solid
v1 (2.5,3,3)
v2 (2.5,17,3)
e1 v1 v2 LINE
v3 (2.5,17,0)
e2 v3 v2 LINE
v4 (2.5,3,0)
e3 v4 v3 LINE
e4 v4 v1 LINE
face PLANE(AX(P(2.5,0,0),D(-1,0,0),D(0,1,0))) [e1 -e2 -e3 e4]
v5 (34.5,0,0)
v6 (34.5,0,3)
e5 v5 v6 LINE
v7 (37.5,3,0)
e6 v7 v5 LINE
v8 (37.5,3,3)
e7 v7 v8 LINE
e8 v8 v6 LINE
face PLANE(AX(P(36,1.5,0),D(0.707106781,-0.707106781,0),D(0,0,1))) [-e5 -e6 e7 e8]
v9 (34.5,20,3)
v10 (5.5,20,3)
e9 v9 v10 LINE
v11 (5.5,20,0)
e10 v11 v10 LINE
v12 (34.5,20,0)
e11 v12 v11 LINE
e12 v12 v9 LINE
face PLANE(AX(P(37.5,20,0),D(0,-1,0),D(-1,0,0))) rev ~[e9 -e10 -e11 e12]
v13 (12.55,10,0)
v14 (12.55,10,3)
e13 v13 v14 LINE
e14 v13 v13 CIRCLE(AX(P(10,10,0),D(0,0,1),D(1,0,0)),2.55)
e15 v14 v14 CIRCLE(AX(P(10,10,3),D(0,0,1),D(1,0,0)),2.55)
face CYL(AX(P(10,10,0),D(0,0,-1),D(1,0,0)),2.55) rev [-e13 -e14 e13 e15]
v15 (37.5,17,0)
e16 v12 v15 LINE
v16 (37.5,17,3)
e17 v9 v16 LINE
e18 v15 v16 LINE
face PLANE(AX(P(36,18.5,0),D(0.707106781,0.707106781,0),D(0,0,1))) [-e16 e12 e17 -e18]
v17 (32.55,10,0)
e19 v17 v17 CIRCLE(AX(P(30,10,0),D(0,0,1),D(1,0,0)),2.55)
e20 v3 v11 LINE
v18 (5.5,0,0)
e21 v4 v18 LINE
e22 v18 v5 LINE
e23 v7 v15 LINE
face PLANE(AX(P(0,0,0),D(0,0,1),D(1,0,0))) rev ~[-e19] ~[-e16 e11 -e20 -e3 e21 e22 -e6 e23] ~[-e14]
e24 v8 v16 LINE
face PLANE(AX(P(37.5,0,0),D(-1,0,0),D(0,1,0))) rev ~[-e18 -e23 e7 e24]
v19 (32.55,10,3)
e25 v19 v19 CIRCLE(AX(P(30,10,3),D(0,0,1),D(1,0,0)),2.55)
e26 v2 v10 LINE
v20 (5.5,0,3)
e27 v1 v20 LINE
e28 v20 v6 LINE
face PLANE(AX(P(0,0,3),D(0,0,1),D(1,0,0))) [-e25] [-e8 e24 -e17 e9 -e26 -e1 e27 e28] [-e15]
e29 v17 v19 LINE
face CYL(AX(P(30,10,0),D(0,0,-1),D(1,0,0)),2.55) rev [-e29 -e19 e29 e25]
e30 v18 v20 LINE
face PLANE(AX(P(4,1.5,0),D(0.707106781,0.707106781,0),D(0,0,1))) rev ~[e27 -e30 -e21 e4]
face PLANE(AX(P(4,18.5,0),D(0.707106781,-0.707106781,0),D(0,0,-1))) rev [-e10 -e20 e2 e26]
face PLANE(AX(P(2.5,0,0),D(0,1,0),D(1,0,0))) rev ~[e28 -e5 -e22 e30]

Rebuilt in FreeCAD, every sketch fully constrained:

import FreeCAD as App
import Part
import Sketcher

V = App.Vector


def edges_at(feature, points):
    """Names of the edges that pass closest to the given points."""
    edges = feature.Shape.Edges
    near = lambda p: min(range(len(edges)), key=lambda i: edges[i].distToShape(Part.Vertex(*p))[0])
    return sorted({f"Edge{near(p) + 1}" for p in points})


def add_polygon(sketch, points):
    """Adds a closed chain of lines whose ends are joined by coincident constraints."""
    first, n = sketch.GeometryCount, len(points)
    for a, b in zip(points, points[1:] + points[:1]):
        sketch.addGeometry(Part.LineSegment(App.Vector(*a, 0), App.Vector(*b, 0)), False)
    for i in range(n):
        sketch.addConstraint(Sketcher.Constraint("Coincident", first + i, 2, first + (i + 1) % n, 1))

doc = App.newDocument("Part")
body = doc.addObject("PartDesign::Body", "Body")

# Sketch on XY plane
sketch1 = doc.addObject("Sketcher::SketchObject", "Sketch")
body.addObject(sketch1)
sketch1.AttachmentSupport = (doc.XY_Plane, [""])
sketch1.MapMode = "FlatFace"
add_polygon(sketch1, [(2.5, 20), (2.5, 0), (37.5, 0), (37.5, 20)])  # lines 0-3
sketch1.addGeometry(Part.Circle(V(10, 10, 0), V(0, 0, 1), 2.5), False)  # 4
sketch1.addGeometry(Part.Circle(V(30, 10, 0), V(0, 0, 1), 2.5), False)  # 5
sketch1.addConstraint(Sketcher.Constraint("Vertical", 0))
sketch1.addConstraint(Sketcher.Constraint("Horizontal", 1))
sketch1.addConstraint(Sketcher.Constraint("Vertical", 2))
sketch1.addConstraint(Sketcher.Constraint("Horizontal", 3))
sketch1.addConstraint(Sketcher.Constraint("Equal", 4, 5))
sketch1.addConstraint(Sketcher.Constraint("PointOnObject", 0, 2, -1))
sketch1.addConstraint(Sketcher.Constraint("Horizontal", 4, 3, 5, 3))
sketch1.addConstraint(Sketcher.Constraint("Diameter", 4, 5.1))
sketch1.addConstraint(Sketcher.Constraint("DistanceY", 0, 2, 0, 1, 20.0))
sketch1.addConstraint(Sketcher.Constraint("DistanceX", -1, 1, 4, 3, 10.0))
sketch1.addConstraint(Sketcher.Constraint("DistanceY", -1, 1, 4, 3, 10.0))
sketch1.addConstraint(Sketcher.Constraint("DistanceX", 4, 3, 5, 3, 20.0))
sketch1.addConstraint(Sketcher.Constraint("DistanceX", -1, 1, 0, 2, 2.5))
sketch1.addConstraint(Sketcher.Constraint("DistanceX", 1, 1, 1, 2, 35.0))
pad1 = doc.addObject("PartDesign::Pad", "Pad")
body.addObject(pad1)
pad1.Profile = sketch1
pad1.Length = 3
doc.recompute()

chamfer = doc.addObject("PartDesign::Chamfer", "Chamfer")
body.addObject(chamfer)
chamfer.Base = (pad1, edges_at(pad1, [
    (37.5, 0, 1.5),
    (37.5, 20, 1.5),
    (2.5, 20, 1.5),
    (2.5, 0, 1.5),
]))
chamfer.Size = 3

doc.recompute()
